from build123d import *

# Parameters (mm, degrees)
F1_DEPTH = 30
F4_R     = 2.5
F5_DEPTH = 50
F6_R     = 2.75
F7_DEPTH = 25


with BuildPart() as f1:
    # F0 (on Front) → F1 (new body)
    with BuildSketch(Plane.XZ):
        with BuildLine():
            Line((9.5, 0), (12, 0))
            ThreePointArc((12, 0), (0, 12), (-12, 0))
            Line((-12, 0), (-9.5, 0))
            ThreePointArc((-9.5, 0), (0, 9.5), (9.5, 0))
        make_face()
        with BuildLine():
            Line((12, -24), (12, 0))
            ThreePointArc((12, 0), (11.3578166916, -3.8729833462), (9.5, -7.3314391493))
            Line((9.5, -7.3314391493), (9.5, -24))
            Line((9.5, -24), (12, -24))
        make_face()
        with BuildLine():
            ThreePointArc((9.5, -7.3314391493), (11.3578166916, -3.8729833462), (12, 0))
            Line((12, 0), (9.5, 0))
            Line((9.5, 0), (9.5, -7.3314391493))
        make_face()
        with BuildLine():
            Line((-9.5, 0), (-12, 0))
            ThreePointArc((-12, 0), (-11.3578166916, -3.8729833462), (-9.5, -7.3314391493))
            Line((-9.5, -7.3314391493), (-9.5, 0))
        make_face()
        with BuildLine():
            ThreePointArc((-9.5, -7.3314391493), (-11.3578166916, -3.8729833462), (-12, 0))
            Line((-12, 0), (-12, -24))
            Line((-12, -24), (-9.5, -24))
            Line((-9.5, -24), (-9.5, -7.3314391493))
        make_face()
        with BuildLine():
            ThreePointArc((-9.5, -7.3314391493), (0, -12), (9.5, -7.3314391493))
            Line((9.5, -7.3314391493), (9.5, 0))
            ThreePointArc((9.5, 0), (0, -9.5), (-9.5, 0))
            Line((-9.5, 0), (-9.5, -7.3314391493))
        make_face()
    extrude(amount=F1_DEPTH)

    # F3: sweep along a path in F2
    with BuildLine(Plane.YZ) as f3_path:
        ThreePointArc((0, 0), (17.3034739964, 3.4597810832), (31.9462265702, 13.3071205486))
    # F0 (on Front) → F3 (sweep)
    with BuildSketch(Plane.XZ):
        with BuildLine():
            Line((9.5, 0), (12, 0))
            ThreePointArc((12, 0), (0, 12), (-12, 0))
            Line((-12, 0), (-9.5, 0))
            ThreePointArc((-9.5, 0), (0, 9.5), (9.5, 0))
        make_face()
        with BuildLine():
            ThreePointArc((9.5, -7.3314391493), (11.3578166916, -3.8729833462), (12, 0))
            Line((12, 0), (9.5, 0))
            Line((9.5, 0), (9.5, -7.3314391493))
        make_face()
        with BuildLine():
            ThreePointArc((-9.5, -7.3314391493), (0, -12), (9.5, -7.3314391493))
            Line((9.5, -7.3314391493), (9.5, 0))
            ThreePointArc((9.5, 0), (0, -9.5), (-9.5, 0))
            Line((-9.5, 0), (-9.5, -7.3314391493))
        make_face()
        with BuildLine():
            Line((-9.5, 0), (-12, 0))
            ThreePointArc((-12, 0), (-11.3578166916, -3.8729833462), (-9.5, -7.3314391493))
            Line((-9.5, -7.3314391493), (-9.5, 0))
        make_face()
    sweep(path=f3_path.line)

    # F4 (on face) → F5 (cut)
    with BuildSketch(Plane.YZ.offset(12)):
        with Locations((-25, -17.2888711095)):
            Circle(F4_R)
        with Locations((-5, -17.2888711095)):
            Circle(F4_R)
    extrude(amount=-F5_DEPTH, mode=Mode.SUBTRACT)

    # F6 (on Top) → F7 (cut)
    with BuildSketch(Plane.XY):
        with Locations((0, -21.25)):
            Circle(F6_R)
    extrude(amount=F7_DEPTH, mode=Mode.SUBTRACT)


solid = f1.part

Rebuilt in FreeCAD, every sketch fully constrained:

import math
import FreeCAD as App
import Part
import Sketcher
from FreeCAD import Vector
Q = App.Units.Quantity

doc = App.newDocument("Part")
body = doc.addObject("PartDesign::Body", "Body")

sketch1 = body.newObject("Sketcher::SketchObject", "Sketch")
sketch1.AttachmentSupport = (doc.getObject("XZ_Plane"), [""])
sketch1.MapMode = "FlatFace"
sketch1.addGeometry(Part.ArcOfCircle(Part.Circle(Vector(0, 0, 0), Vector(0, 0, 1), 12), math.radians(0), math.radians(180)), False)
sketch1.addGeometry(Part.LineSegment(Vector(-12, 0, 0), Vector(-12, -24, 0)), False)
sketch1.addGeometry(Part.LineSegment(Vector(-12, -24, 0), Vector(-9.5, -24, 0)), False)
sketch1.addGeometry(Part.LineSegment(Vector(-9.5, -24, 0), Vector(-9.5, -7.3, 0)), False)
sketch1.addGeometry(Part.ArcOfCircle(Part.Circle(Vector(0, 0, 0), Vector(0, 0, 1), 12), math.radians(-142), math.radians(-38)), False)
sketch1.addGeometry(Part.LineSegment(Vector(9.5, -7.3, 0), Vector(9.5, -24, 0)), False)
sketch1.addGeometry(Part.LineSegment(Vector(9.5, -24, 0), Vector(12, -24, 0)), False)
sketch1.addGeometry(Part.LineSegment(Vector(12, -24, 0), Vector(12, 0, 0)), False)
sketch1.addGeometry(Part.Circle(Vector(0, 0, 0), Vector(0, 0, 1), 9.5), False)
sketch1.addConstraint(Sketcher.Constraint("Tangent", 0, 2, 1, 1))
sketch1.addConstraint(Sketcher.Constraint("Coincident", 1, 2, 2, 1))
sketch1.addConstraint(Sketcher.Constraint("Coincident", 2, 2, 3, 1))
sketch1.addConstraint(Sketcher.Constraint("Coincident", 3, 2, 4, 1))
sketch1.addConstraint(Sketcher.Constraint("Coincident", 4, 2, 5, 1))
sketch1.addConstraint(Sketcher.Constraint("Coincident", 5, 2, 6, 1))
sketch1.addConstraint(Sketcher.Constraint("Coincident", 6, 2, 7, 1))
sketch1.addConstraint(Sketcher.Constraint("Tangent", 7, 2, 0, 1))
sketch1.addConstraint(Sketcher.Constraint("Vertical", 1))
sketch1.addConstraint(Sketcher.Constraint("Horizontal", 2))
sketch1.addConstraint(Sketcher.Constraint("Vertical", 3))
sketch1.addConstraint(Sketcher.Constraint("Vertical", 5))
sketch1.addConstraint(Sketcher.Constraint("Horizontal", 6))
sketch1.addConstraint(Sketcher.Constraint("Vertical", 7))
sketch1.addConstraint(Sketcher.Constraint("Coincident", 0, 3, -1, 1))
sketch1.addConstraint(Sketcher.Constraint("Coincident", 4, 3, -1, 1))
sketch1.addConstraint(Sketcher.Constraint("Coincident", 8, 3, -1, 1))
sketch1.addConstraint(Sketcher.Constraint("Equal", 0, 4))
sketch1.addConstraint(Sketcher.Constraint("Symmetric", 2, 2, 5, 2, -2))
sketch1.addConstraint(Sketcher.Constraint("Diameter", 8, Q("19 mm")))
sketch1.addConstraint(Sketcher.Constraint("Radius", 0, Q("12 mm")))
sketch1.addConstraint(Sketcher.Constraint("DistanceY", 1, 2, 1, 1, Q("24 mm")))
sketch1.addConstraint(Sketcher.Constraint("DistanceX", 2, 1, 2, 2, Q("2.5 mm")))
pad1 = body.newObject("PartDesign::Pad", "Pad")
pad1.Profile = sketch1
pad1.Length = 30

sketch2 = body.newObject("Sketcher::SketchObject", "Sketch001")
sketch2.AttachmentSupport = (doc.getObject("XZ_Plane"), [""])
sketch2.MapMode = "FlatFace"
sketch2.addGeometry(Part.ArcOfCircle(Part.Circle(Vector(0, 0, 0), Vector(0, 0, 1), 12), math.radians(-38), math.radians(218)), False)
sketch2.addGeometry(Part.ArcOfCircle(Part.Circle(Vector(0, 0, 0), Vector(0, 0, 1), 12), math.radians(-142), math.radians(-38)), False)
sketch2.addGeometry(Part.Circle(Vector(0, 0, 0), Vector(0, 0, 1), 10), False)
sketch2.addConstraint(Sketcher.Constraint("Tangent", 0, 1, 1, 2))
sketch2.addConstraint(Sketcher.Constraint("Coincident", 1, 1, 0, 2))
sketch2.addConstraint(Sketcher.Constraint("Coincident", 0, 3, -1, 1))
sketch2.addConstraint(Sketcher.Constraint("Coincident", 2, 3, -1, 1))
sketch2.addConstraint(Sketcher.Constraint("Horizontal", 0, 1, 1, 1))
sketch2.addConstraint(Sketcher.Constraint("Diameter", 2, Q("19 mm")))
sketch2.addConstraint(Sketcher.Constraint("Radius", 0, Q("12 mm")))
sketch2.addConstraint(Sketcher.Constraint("DistanceX", 1, 1, 0, 1, Q("19 mm")))

sketch3 = body.newObject("Sketcher::SketchObject", "Sketch002")
sketch3.AttachmentSupport = (doc.getObject("YZ_Plane"), [""])
sketch3.MapMode = "FlatFace"
sketch3.addGeometry(Part.ArcOfCircle(Part.Circle(Vector(0, 45, 0), Vector(0, 0, 1), 45), math.radians(-90), math.radians(-45)), False)
sketch3.addConstraint(Sketcher.Constraint("Coincident", 0, 1, -1, 1))
sketch3.addConstraint(Sketcher.Constraint("PointOnObject", 0, 3, -2))
sketch3.addConstraint(Sketcher.Constraint("Radius", 0, Q("45 mm")))
sketch3.addConstraint(Sketcher.Constraint("DistanceY", -1, 1, 0, 2, Q("13.307121 mm")))
doc.recompute()

additivepipe = body.newObject("PartDesign::AdditivePipe", "AdditivePipe")
additivepipe.Profile = sketch2
additivepipe.Spine = (sketch3, ["Edge1"])

sketch4 = body.newObject("Sketcher::SketchObject", "Sketch003")
sketch4.AttachmentSupport = (doc.getObject("YZ_Plane"), [""])
sketch4.MapMode = "FlatFace"
sketch4.AttachmentOffset = App.Placement(Vector(0, 0, 12), App.Rotation())
sketch4.addGeometry(Part.Circle(Vector(-25, -17.3, 0), Vector(0, 0, 1), 2.5), False)
sketch4.addGeometry(Part.Circle(Vector(-5, -17.3, 0), Vector(0, 0, 1), 2.5), False)
sketch4.addConstraint(Sketcher.Constraint("Equal", 0, 1))
sketch4.addConstraint(Sketcher.Constraint("Horizontal", 0, 3, 1, 3))
sketch4.addConstraint(Sketcher.Constraint("Diameter", 0, Q("5 mm")))
sketch4.addConstraint(Sketcher.Constraint("DistanceX", 0, 3, -1, 1, Q("25 mm")))
sketch4.addConstraint(Sketcher.Constraint("DistanceX", 1, 3, -1, 1, Q("5 mm")))
sketch4.addConstraint(Sketcher.Constraint("DistanceY", 0, 3, -1, 1, Q("17.288871 mm")))
pocket1 = body.newObject("PartDesign::Pocket", "Pocket")
pocket1.Profile = sketch4
pocket1.Length = 50

sketch5 = body.newObject("Sketcher::SketchObject", "Sketch004")
sketch5.AttachmentSupport = (doc.getObject("XY_Plane"), [""])
sketch5.MapMode = "FlatFace"
sketch5.addGeometry(Part.Circle(Vector(0, -21.2, 0), Vector(0, 0, 1), 2.8), False)
sketch5.addConstraint(Sketcher.Constraint("PointOnObject", 0, 3, -2))
sketch5.addConstraint(Sketcher.Constraint("Diameter", 0, Q("5.5 mm")))
sketch5.addConstraint(Sketcher.Constraint("DistanceY", 0, 3, -1, 1, Q("21.25 mm")))
pocket2 = body.newObject("PartDesign::Pocket", "Pocket001")
pocket2.Profile = sketch5
pocket2.Length = 25
pocket2.Reversed = True

doc.recompute()
